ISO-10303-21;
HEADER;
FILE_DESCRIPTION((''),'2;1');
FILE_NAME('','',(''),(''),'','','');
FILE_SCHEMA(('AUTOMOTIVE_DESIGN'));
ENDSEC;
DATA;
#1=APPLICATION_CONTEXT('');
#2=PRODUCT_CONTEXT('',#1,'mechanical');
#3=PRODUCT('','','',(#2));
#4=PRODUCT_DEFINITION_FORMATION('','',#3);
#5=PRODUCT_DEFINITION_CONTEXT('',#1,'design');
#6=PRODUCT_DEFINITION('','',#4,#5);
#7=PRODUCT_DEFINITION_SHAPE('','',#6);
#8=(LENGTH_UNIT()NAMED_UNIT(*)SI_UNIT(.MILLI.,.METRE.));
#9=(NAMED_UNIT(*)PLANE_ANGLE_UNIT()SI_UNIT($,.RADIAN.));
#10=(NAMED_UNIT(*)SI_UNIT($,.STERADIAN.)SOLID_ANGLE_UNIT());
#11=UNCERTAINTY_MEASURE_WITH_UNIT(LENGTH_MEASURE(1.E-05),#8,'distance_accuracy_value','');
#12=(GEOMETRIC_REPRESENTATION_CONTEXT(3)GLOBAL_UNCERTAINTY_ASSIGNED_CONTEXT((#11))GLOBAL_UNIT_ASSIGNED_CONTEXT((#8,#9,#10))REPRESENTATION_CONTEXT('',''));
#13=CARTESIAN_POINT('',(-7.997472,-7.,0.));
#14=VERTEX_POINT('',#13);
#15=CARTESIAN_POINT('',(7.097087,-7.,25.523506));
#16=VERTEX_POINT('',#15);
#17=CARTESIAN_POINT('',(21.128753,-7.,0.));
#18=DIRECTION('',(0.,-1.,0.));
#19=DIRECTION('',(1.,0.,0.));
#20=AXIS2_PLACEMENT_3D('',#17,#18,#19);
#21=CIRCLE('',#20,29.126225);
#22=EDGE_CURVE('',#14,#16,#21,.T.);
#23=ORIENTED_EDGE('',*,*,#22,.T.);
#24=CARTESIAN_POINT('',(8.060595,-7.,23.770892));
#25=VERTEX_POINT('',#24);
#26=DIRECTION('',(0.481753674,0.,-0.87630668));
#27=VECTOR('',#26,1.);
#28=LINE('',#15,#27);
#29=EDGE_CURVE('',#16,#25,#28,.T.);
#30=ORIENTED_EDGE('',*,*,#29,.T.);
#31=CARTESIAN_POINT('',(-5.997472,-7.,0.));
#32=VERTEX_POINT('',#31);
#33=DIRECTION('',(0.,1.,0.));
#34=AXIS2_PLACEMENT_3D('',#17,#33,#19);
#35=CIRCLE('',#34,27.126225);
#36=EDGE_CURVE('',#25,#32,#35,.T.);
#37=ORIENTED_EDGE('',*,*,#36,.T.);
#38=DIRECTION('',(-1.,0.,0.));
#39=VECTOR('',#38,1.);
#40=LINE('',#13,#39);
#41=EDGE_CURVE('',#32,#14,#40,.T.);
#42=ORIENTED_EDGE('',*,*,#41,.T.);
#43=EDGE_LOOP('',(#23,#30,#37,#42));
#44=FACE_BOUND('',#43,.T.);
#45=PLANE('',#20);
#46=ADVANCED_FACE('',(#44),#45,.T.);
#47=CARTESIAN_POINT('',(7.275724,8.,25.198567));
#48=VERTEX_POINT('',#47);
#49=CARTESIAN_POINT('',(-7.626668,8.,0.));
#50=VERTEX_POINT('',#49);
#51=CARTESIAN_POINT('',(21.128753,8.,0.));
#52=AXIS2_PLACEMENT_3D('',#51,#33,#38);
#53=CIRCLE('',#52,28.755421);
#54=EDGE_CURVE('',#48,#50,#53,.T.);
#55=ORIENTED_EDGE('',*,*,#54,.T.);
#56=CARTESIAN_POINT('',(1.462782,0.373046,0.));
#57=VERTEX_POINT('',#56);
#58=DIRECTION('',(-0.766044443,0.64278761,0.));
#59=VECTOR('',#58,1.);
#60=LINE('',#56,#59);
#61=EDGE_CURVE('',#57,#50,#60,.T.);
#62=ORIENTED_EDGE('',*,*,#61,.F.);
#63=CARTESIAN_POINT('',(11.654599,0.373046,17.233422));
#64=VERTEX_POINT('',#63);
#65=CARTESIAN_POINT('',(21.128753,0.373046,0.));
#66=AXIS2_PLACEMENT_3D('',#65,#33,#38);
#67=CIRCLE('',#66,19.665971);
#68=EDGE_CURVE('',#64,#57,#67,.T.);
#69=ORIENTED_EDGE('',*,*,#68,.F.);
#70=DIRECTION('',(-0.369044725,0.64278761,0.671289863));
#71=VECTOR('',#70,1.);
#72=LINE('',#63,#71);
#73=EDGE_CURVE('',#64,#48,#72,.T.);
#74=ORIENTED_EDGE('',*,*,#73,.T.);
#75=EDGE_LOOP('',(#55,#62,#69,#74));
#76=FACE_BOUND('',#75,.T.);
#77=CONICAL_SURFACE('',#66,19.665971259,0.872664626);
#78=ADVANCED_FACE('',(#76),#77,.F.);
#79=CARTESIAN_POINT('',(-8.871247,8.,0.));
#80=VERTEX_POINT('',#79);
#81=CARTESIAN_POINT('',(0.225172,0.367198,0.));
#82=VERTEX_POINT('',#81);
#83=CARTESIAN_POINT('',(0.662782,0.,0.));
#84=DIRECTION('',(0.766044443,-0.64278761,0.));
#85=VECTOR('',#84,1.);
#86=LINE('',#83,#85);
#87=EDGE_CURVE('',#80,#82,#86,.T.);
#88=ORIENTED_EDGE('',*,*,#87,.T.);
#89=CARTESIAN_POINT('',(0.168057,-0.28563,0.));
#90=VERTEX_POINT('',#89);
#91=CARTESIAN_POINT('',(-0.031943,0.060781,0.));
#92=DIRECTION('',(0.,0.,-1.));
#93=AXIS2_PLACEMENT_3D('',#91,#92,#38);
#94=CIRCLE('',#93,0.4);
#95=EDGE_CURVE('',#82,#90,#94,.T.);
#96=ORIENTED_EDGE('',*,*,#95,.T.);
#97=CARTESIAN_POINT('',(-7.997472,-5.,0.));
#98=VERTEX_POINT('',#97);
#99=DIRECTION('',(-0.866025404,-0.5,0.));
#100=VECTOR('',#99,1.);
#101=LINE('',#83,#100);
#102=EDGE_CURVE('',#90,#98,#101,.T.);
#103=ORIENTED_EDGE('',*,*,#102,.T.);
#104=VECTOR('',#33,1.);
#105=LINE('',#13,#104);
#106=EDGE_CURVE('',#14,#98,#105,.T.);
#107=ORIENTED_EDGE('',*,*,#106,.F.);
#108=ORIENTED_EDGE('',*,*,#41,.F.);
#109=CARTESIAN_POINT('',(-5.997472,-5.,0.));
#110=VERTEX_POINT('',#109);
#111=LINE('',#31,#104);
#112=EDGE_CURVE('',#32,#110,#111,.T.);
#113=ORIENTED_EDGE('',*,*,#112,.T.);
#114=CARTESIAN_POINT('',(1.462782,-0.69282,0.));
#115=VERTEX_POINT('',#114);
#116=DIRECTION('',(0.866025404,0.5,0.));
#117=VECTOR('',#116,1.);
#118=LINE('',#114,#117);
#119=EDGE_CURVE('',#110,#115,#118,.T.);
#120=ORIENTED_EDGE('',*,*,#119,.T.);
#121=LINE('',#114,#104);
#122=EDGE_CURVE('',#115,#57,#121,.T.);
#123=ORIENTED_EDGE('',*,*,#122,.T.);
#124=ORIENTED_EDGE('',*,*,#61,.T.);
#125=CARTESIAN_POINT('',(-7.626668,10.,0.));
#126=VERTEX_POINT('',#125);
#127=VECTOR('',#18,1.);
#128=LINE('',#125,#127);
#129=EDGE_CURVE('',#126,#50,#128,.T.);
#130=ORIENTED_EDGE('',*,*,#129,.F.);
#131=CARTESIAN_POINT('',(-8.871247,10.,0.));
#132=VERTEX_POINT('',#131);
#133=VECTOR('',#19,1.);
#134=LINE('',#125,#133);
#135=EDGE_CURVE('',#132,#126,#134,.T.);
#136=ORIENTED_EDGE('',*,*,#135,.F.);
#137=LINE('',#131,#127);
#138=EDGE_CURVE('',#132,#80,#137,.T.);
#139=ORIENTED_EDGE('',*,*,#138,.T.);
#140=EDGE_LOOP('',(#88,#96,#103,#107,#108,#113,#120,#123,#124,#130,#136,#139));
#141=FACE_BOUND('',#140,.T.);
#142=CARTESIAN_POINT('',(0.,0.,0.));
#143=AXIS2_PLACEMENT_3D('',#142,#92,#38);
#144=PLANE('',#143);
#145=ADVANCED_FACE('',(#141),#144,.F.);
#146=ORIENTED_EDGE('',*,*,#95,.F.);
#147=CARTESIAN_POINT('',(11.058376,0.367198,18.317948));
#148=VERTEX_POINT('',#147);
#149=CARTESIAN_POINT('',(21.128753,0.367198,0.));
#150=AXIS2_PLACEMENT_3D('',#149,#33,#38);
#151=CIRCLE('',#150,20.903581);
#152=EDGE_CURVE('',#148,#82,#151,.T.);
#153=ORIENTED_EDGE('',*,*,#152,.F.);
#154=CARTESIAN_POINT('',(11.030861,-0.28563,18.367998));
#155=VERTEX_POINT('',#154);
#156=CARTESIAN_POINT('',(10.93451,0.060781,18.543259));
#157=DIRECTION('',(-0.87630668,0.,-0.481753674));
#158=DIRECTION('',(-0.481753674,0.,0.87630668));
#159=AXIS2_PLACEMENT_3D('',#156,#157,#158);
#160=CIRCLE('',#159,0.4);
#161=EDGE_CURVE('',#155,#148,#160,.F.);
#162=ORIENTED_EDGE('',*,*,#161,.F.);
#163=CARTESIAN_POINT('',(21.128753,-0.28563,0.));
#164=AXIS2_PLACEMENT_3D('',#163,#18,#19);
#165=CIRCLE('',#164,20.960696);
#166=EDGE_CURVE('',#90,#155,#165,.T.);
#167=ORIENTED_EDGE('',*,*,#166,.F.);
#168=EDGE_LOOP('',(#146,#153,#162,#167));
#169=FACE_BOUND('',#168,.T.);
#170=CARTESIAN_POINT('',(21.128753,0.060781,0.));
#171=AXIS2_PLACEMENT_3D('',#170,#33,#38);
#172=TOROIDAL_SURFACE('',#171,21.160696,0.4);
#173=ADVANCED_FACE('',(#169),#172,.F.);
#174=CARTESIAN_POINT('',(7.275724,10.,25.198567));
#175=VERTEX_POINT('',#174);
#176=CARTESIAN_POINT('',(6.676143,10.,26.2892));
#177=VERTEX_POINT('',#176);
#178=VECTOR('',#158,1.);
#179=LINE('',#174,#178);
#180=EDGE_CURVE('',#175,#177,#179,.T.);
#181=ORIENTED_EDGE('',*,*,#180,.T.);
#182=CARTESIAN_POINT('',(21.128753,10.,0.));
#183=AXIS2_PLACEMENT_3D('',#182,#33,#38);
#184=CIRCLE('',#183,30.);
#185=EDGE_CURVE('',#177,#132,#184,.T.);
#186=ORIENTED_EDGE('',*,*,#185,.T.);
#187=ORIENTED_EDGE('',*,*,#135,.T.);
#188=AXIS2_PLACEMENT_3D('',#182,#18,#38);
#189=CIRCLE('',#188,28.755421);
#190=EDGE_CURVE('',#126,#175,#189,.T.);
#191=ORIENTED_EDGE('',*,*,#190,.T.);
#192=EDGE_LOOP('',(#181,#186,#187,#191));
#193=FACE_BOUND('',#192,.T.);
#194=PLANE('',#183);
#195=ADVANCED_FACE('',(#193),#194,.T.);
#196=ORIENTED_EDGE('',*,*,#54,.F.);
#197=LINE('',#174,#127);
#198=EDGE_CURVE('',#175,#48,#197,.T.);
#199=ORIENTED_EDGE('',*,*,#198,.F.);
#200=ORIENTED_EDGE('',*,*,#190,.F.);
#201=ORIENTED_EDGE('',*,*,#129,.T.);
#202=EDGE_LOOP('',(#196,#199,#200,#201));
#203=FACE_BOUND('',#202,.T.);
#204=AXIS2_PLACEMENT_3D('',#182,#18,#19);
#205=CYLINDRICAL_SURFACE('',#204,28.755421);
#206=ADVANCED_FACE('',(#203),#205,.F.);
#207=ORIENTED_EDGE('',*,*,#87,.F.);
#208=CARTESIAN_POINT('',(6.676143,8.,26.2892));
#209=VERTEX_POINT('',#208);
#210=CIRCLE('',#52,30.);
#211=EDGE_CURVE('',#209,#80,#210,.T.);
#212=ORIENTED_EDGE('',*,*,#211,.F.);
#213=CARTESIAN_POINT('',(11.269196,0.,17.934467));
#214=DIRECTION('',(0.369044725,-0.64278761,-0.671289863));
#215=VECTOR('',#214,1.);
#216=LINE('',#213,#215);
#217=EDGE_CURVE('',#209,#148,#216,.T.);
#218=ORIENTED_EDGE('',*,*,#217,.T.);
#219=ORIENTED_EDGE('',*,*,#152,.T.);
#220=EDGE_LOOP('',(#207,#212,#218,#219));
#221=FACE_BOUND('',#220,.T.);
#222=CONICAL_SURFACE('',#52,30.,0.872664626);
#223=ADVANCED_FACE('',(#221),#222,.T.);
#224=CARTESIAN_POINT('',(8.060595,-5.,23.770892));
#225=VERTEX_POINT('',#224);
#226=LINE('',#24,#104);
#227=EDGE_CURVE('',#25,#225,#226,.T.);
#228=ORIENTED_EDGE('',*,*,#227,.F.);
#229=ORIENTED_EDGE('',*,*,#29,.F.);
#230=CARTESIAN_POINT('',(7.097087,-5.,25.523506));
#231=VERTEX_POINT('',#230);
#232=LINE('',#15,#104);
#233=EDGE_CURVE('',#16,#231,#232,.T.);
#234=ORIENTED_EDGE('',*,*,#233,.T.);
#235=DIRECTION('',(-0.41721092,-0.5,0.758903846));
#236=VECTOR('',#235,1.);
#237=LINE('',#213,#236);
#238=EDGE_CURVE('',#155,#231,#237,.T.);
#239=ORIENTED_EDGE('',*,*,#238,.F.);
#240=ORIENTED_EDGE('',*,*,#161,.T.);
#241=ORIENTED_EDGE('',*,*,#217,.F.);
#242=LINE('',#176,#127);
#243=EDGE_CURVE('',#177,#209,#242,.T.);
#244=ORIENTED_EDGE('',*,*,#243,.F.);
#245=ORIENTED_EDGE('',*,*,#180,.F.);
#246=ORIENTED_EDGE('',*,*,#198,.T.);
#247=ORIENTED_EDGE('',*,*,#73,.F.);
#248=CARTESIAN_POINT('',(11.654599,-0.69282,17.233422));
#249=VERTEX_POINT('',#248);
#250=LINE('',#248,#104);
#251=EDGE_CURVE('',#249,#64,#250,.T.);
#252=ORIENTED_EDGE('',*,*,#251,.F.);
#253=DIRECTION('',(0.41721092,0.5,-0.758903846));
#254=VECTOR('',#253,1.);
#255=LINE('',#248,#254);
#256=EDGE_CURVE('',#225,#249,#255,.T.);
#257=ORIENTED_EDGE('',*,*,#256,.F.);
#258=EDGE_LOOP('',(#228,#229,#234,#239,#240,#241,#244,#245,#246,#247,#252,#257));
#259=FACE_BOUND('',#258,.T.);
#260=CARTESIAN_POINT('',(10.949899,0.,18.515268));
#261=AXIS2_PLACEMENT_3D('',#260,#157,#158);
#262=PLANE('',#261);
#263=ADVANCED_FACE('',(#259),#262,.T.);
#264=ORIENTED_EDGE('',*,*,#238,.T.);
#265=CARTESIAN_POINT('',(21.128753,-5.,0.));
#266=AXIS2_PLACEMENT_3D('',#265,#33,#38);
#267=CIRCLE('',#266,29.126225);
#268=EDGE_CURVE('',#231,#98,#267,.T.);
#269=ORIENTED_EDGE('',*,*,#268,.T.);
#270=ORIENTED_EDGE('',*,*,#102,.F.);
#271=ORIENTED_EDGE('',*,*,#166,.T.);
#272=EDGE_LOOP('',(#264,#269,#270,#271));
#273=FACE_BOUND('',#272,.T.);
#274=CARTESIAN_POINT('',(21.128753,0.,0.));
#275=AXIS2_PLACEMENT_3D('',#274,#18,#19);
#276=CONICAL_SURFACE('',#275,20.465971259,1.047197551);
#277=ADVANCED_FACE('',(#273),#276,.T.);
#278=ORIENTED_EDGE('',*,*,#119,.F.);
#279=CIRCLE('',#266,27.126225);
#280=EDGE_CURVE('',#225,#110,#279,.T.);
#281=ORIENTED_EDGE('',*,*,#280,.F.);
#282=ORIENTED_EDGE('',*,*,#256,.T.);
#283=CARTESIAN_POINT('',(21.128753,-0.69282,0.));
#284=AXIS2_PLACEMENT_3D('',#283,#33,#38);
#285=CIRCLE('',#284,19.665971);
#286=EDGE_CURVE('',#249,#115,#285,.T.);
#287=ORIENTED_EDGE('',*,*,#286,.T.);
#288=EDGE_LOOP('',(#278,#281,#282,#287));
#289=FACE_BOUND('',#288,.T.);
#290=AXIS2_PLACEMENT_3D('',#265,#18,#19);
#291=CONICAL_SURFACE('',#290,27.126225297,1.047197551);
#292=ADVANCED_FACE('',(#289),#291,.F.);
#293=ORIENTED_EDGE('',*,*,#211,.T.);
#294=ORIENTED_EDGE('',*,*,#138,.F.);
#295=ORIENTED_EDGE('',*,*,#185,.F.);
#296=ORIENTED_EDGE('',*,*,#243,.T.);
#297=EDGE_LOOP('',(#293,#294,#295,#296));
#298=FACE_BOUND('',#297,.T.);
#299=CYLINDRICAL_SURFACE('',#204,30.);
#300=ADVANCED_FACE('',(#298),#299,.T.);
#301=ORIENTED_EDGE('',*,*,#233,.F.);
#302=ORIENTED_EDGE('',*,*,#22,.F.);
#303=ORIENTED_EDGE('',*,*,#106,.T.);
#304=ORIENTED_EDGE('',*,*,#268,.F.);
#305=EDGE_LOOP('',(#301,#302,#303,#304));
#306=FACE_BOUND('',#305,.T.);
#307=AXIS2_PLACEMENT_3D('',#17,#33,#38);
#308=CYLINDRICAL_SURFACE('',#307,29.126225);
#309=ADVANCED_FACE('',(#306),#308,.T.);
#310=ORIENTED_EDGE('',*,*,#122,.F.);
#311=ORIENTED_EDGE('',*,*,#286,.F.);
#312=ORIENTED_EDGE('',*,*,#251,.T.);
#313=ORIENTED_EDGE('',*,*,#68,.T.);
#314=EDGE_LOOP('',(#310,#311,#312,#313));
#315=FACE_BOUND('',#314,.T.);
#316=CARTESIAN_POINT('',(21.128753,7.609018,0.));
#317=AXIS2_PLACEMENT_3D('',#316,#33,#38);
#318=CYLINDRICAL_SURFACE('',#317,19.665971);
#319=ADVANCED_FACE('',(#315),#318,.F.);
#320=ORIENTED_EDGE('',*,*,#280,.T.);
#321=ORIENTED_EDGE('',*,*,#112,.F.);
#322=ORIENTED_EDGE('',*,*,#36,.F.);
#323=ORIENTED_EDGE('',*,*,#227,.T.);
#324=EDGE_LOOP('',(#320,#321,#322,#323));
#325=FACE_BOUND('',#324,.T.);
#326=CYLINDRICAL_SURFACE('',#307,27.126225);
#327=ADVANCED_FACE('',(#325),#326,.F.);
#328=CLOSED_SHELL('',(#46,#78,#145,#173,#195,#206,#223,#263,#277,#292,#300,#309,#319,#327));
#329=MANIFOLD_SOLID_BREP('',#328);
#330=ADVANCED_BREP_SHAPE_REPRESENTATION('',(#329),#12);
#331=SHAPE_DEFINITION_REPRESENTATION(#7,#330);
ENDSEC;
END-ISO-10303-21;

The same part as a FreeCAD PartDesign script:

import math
import FreeCAD as App
import Part
import Sketcher
Q = App.Units.Quantity


def edges_at(feature, points):
    """Names of the edges that pass closest to the given points."""
    edges = feature.Shape.Edges
    near = lambda p: min(range(len(edges)), key=lambda i: edges[i].distToShape(Part.Vertex(*p))[0])
    return sorted({f"Edge{near(p) + 1}" for p in points})


def add_polygon(sketch, points):
    """Adds a closed chain of lines whose ends are joined by coincident constraints."""
    first, n = sketch.GeometryCount, len(points)
    for a, b in zip(points, points[1:] + points[:1]):
        sketch.addGeometry(Part.LineSegment(App.Vector(*a, 0), App.Vector(*b, 0)), False)
    for i in range(n):
        sketch.addConstraint(Sketcher.Constraint("Coincident", first + i, 2, first + (i + 1) % n, 1))

doc = App.newDocument("Part")
body = doc.addObject("PartDesign::Body", "Body")

# Sketch on XY plane
sketch1 = body.newObject("Sketcher::SketchObject", "Sketch")
sketch1.AttachmentSupport = (doc.getObject("XY_Plane"), [""])
sketch1.MapMode = "FlatFace"
add_polygon(sketch1, [(-8.9, 8), (0.7, 0), (-8, -5), (-6, -5), (1.5, -0.7), (1.5, 0.4), (-7.6, 8)])  # lines 0-6
sketch1.addGeometry(Part.LineSegment(App.Vector(21.1, 8, 0), App.Vector(21.1, -5, 0)), True)  # axis
sketch1.addConstraint(Sketcher.Constraint("Horizontal", 2))
sketch1.addConstraint(Sketcher.Constraint("Vertical", 4))
sketch1.addConstraint(Sketcher.Constraint("Horizontal", 6))
sketch1.addConstraint(Sketcher.Constraint("Vertical", 7))
sketch1.addConstraint(Sketcher.Constraint("PointOnObject", 0, 2, -1))
sketch1.addConstraint(Sketcher.Constraint("Parallel", 1, 3))
sketch1.addConstraint(Sketcher.Constraint("Parallel", 0, 5))
sketch1.addConstraint(Sketcher.Constraint("Horizontal", 6, 2, 7, 1))
sketch1.addConstraint(Sketcher.Constraint("Horizontal", 2, 2, 7, 2))
sketch1.addConstraint(Sketcher.Constraint("DistanceX", 2, 1, 2, 2, Q("2 mm")))
sketch1.addConstraint(Sketcher.Constraint("DistanceY", 7, 2, 7, 1, Q("13 mm")))
sketch1.addConstraint(Sketcher.Constraint("Angle", 0, Q("-40 deg")))
sketch1.addConstraint(Sketcher.Constraint("Angle", 1, Q("-150 deg")))
sketch1.addConstraint(Sketcher.Constraint("Distance", 1, Q("10 mm")))
sketch1.addConstraint(Sketcher.Constraint("DistanceX", 6, 2, 7, 1, Q("30 mm")))
sketch1.addConstraint(Sketcher.Constraint("DistanceX", 0, 2, 3, 2, Q("0.8 mm")))
sketch1.addConstraint(Sketcher.Constraint("DistanceX", 6, 2, 6, 1, Q("1.244579 mm")))
sketch1.addConstraint(Sketcher.Constraint("DistanceX", -1, 1, 0, 2, Q("0.662782 mm")))
revolution = body.newObject("PartDesign::Revolution", "Revolution")
revolution.Profile = sketch1
revolution.ReferenceAxis = (sketch1, ["Axis0"])
revolution.Angle = 298.8
doc.recompute()

fillet = body.newObject("PartDesign::Fillet", "Fillet")
fillet.Base = (revolution, edges_at(revolution, [(38.745, 0, -10.418)]))
fillet.Radius = 0.4

# Sketch on XZ plane
sketch2 = body.newObject("Sketcher::SketchObject", "Sketch001")
sketch2.AttachmentSupport = (doc.getObject("XZ_Plane"), [""])
sketch2.MapMode = "FlatFace"
sketch2.AttachmentOffset = App.Placement(App.Vector(0, 0, -8), App.Rotation())
sketch2.addGeometry(Part.LineSegment(App.Vector(7.3, 25.2, 0), App.Vector(6.7, 26.3, 0)), False)
sketch2.addGeometry(Part.ArcOfCircle(Part.Circle(App.Vector(21.1, 0, 0), App.Vector(0, 0, 1), 30), math.radians(180), math.radians(479)), False)
sketch2.addGeometry(Part.LineSegment(App.Vector(-8.9, 0, 0), App.Vector(-7.6, 0, 0)), False)
sketch2.addGeometry(Part.ArcOfCircle(Part.Circle(App.Vector(21.1, 0, 0), App.Vector(0, 0, 1), 28.8), math.radians(180), math.radians(479)), False)
sketch2.addConstraint(Sketcher.Constraint("Coincident", 0, 2, 1, 2))
sketch2.addConstraint(Sketcher.Constraint("Coincident", 1, 1, 2, 1))
sketch2.addConstraint(Sketcher.Constraint("Coincident", 2, 2, 3, 1))
sketch2.addConstraint(Sketcher.Constraint("Coincident", 3, 2, 0, 1))
sketch2.addConstraint(Sketcher.Constraint("Horizontal", 2))
sketch2.addConstraint(Sketcher.Constraint("Coincident", 3, 3, 1, 3))
sketch2.addConstraint(Sketcher.Constraint("PointOnObject", 1, 3, -1))
sketch2.addConstraint(Sketcher.Constraint("PointOnObject", 1, 1, -1))
sketch2.addConstraint(Sketcher.Constraint("Radius", 1, Q("30 mm")))
sketch2.addConstraint(Sketcher.Constraint("Angle", 0, Q("118.8 deg")))
sketch2.addConstraint(Sketcher.Constraint("Radius", 3, Q("28.755421 mm")))
sketch2.addConstraint(Sketcher.Constraint("DistanceY", -1, 1, 0, 2, Q("26.2892 mm")))
sketch2.addConstraint(Sketcher.Constraint("DistanceX", -1, 1, 1, 3, Q("21.128753 mm")))
pad1 = body.newObject("PartDesign::Pad", "Pad")
pad1.Profile = sketch2
pad1.Length = 2
pad1.Reversed = True

# Sketch on XZ plane
sketch3 = body.newObject("Sketcher::SketchObject", "Sketch002")
sketch3.AttachmentSupport = (doc.getObject("XZ_Plane"), [""])
sketch3.MapMode = "FlatFace"
sketch3.AttachmentOffset = App.Placement(App.Vector(0, 0, 5), App.Rotation())
sketch3.addGeometry(Part.LineSegment(App.Vector(-6, 0, 0), App.Vector(-8, 0, 0)), False)
sketch3.addGeometry(Part.ArcOfCircle(Part.Circle(App.Vector(21.1, 0, 0), App.Vector(0, 0, 1), 29.1), math.radians(180), math.radians(479)), False)
sketch3.addGeometry(Part.LineSegment(App.Vector(7.1, 25.5, 0), App.Vector(8.1, 23.8, 0)), False)
sketch3.addGeometry(Part.ArcOfCircle(Part.Circle(App.Vector(21.1, 0, 0), App.Vector(0, 0, 1), 27.1), math.radians(180), math.radians(479)), False)
sketch3.addConstraint(Sketcher.Constraint("Coincident", 0, 2, 1, 1))
sketch3.addConstraint(Sketcher.Constraint("Coincident", 1, 2, 2, 1))
sketch3.addConstraint(Sketcher.Constraint("Coincident", 2, 2, 3, 2))
sketch3.addConstraint(Sketcher.Constraint("Coincident", 3, 1, 0, 1))
sketch3.addConstraint(Sketcher.Constraint("Horizontal", 0))
sketch3.addConstraint(Sketcher.Constraint("Coincident", 3, 3, 1, 3))
sketch3.addConstraint(Sketcher.Constraint("PointOnObject", 1, 3, -1))
sketch3.addConstraint(Sketcher.Constraint("PointOnObject", 0, 2, -1))
sketch3.addConstraint(Sketcher.Constraint("DistanceX", 0, 2, 0, 1, Q("2 mm")))
sketch3.addConstraint(Sketcher.Constraint("Angle", 2, Q("-61.2 deg")))
sketch3.addConstraint(Sketcher.Constraint("Radius", 1, Q("29.126225 mm")))
sketch3.addConstraint(Sketcher.Constraint("DistanceX", 0, 2, 1, 2, Q("15.094559 mm")))
sketch3.addConstraint(Sketcher.Constraint("DistanceX", -1, 1, 1, 3, Q("21.128753 mm")))
pad2 = body.newObject("PartDesign::Pad", "Pad001")
pad2.Profile = sketch3
pad2.Length = 2

doc.recompute()
